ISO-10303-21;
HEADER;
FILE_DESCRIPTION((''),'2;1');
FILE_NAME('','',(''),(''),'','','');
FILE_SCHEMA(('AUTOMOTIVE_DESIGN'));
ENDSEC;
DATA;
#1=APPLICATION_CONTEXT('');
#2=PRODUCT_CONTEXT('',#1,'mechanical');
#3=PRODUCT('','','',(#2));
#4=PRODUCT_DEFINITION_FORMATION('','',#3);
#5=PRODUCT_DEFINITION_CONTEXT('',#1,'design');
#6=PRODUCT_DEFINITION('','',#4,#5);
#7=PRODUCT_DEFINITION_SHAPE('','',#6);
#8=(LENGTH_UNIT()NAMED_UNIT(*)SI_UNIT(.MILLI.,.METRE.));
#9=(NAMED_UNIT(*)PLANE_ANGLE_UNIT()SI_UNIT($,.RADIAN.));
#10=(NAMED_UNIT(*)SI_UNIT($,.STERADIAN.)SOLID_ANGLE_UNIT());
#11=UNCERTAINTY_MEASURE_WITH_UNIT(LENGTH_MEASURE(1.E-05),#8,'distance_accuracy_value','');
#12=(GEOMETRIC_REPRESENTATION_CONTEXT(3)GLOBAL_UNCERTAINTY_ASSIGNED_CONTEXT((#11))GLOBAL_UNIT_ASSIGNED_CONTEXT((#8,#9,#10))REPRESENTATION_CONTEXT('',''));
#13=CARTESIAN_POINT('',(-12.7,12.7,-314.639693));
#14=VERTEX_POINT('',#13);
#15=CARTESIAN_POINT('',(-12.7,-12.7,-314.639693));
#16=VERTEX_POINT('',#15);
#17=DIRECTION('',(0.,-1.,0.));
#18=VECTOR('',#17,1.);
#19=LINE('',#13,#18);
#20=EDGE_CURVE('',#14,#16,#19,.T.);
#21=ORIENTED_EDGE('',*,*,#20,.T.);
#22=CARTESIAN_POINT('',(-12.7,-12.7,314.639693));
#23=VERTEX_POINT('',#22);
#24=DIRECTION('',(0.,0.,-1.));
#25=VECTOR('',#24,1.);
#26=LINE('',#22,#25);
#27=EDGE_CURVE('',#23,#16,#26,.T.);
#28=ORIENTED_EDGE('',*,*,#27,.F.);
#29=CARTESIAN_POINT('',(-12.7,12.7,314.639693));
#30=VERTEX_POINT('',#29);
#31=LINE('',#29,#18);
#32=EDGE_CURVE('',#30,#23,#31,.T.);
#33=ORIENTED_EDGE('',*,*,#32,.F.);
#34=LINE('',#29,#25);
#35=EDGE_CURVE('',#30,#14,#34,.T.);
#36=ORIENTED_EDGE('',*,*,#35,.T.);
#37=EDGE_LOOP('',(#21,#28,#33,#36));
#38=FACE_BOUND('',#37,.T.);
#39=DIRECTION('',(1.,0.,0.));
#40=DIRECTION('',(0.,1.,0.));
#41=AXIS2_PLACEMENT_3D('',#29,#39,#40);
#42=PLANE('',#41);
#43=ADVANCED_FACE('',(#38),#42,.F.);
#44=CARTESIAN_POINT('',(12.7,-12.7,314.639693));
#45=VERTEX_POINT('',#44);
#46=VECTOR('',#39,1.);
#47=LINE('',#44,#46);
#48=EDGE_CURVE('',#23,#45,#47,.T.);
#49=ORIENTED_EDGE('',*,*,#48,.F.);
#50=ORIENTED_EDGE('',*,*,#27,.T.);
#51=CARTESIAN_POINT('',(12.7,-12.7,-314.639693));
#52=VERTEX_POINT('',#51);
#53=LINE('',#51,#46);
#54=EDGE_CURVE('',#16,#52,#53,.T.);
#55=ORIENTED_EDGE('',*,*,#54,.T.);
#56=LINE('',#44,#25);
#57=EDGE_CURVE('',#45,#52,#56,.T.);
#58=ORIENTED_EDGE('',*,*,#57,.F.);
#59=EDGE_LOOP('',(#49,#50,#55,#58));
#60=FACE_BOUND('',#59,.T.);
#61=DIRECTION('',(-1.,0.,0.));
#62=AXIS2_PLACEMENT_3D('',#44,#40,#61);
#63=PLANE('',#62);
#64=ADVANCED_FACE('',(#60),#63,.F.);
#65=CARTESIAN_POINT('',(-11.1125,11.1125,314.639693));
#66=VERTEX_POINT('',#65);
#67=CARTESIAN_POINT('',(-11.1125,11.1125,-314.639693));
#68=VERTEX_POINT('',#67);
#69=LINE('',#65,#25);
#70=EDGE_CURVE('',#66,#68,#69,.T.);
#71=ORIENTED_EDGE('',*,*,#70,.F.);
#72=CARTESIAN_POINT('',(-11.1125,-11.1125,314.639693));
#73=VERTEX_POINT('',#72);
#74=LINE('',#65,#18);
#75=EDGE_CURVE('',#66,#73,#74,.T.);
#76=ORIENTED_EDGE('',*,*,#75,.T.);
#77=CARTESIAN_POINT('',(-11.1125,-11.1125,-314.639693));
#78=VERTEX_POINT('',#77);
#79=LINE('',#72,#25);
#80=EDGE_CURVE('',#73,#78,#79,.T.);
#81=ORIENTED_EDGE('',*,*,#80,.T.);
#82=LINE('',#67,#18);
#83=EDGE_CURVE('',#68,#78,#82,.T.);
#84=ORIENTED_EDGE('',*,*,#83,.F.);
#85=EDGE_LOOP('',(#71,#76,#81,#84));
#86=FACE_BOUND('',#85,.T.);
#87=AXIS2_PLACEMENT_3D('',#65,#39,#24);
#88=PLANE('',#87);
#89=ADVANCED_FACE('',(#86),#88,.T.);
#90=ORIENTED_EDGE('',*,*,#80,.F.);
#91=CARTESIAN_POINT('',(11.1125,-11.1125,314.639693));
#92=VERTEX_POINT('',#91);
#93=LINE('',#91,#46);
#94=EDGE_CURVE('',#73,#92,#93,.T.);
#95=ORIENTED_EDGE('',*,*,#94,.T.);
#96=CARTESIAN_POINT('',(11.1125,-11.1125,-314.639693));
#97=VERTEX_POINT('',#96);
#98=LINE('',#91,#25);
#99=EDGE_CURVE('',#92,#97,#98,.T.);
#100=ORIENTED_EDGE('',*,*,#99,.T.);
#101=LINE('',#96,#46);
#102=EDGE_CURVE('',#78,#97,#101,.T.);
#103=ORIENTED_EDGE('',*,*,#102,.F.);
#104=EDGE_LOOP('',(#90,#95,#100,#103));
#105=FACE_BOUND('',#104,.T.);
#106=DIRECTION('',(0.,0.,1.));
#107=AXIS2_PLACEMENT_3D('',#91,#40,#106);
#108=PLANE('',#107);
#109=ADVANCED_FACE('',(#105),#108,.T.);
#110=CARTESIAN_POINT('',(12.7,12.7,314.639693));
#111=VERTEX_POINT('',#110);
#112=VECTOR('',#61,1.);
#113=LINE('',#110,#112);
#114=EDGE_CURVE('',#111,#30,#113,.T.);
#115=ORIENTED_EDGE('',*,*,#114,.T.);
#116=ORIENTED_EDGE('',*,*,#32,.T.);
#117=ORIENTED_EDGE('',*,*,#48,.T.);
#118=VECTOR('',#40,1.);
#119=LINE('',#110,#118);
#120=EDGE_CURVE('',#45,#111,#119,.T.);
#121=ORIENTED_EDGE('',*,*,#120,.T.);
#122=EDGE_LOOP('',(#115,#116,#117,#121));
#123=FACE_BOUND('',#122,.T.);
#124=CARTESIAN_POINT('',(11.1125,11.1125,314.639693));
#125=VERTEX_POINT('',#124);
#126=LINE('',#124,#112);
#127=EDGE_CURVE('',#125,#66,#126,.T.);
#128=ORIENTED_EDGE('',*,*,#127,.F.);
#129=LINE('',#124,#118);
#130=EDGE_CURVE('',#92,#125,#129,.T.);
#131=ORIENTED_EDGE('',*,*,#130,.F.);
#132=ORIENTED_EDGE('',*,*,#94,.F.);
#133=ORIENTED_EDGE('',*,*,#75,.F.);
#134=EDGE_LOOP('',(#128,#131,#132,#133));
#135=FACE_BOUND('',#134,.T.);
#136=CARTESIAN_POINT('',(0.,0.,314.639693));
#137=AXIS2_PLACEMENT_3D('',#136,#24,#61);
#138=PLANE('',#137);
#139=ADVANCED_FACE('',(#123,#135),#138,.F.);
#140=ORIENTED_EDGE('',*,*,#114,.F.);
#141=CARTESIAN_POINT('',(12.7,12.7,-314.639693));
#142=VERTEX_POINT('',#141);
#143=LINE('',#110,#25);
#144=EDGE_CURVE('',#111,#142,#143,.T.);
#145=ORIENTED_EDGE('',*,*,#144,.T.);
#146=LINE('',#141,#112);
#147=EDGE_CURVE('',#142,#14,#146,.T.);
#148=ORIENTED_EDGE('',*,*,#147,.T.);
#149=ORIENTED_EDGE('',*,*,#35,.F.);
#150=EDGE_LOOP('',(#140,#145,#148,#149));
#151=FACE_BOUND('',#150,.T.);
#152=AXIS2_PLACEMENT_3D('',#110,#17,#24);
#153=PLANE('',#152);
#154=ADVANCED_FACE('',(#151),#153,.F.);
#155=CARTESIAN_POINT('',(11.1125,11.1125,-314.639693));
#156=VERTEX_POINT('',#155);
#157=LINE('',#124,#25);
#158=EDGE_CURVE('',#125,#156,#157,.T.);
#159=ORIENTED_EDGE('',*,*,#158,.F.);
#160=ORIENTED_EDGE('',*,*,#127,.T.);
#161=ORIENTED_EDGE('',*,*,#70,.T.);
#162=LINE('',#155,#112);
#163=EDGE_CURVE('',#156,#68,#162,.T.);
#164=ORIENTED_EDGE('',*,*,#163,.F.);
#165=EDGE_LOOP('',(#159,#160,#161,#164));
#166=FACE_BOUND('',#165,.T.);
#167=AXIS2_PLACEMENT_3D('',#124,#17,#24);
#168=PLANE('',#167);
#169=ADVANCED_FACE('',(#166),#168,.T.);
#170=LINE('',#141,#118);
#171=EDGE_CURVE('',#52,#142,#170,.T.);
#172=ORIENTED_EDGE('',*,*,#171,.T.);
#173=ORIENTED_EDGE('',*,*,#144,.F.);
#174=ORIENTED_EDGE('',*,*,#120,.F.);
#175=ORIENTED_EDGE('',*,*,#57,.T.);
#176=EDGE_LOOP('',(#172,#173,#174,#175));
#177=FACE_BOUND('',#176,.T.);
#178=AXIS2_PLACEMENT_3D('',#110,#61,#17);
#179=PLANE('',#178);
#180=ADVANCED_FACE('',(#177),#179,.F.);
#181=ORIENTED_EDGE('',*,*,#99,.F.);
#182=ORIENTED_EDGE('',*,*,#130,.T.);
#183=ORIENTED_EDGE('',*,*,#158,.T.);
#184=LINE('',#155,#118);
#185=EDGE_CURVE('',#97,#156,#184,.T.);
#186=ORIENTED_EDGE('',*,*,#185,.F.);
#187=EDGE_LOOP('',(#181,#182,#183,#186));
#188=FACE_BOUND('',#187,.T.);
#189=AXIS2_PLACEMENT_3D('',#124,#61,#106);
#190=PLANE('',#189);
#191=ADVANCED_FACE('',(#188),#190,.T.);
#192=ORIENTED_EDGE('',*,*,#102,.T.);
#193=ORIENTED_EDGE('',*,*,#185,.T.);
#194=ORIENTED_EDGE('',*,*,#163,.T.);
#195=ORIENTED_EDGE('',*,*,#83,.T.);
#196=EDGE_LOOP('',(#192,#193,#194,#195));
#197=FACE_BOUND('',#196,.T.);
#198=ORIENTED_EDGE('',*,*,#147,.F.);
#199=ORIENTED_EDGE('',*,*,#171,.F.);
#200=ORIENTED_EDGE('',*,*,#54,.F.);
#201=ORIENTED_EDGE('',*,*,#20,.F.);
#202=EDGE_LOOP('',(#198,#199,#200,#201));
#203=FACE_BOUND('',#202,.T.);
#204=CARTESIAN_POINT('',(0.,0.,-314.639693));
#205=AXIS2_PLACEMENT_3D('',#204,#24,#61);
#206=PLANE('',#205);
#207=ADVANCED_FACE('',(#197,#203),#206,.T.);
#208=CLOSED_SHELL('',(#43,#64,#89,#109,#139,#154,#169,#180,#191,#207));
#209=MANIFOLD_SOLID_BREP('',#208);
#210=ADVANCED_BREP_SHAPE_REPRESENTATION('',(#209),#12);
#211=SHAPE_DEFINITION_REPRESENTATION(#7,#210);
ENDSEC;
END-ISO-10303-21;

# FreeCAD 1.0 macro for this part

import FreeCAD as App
import Part
import Sketcher
Q = App.Units.Quantity


def add_polygon(sketch, points):
    """Adds a closed chain of lines whose ends are joined by coincident constraints."""
    first, n = sketch.GeometryCount, len(points)
    for a, b in zip(points, points[1:] + points[:1]):
        sketch.addGeometry(Part.LineSegment(App.Vector(*a, 0), App.Vector(*b, 0)), False)
    for i in range(n):
        sketch.addConstraint(Sketcher.Constraint("Coincident", first + i, 2, first + (i + 1) % n, 1))

doc = App.newDocument("Part")
body = doc.addObject("PartDesign::Body", "Body")

sketch1 = body.newObject("Sketcher::SketchObject", "Sketch")
sketch1.AttachmentSupport = (doc.getObject("XY_Plane"), [""])
sketch1.MapMode = "FlatFace"
add_polygon(sketch1, [(-13, 13), (-13, -13), (13, -13), (13, 13)])
add_polygon(sketch1, [(11, -11), (-11, -11), (-11, 11), (11, 11)])
sketch1.addConstraint([
    Sketcher.Constraint("Vertical", 0),
    Sketcher.Constraint("Horizontal", 1),
    Sketcher.Constraint("Vertical", 2),
    Sketcher.Constraint("Horizontal", 3),
    Sketcher.Constraint("Horizontal", 4),
    Sketcher.Constraint("Vertical", 5),
    Sketcher.Constraint("Horizontal", 6),
    Sketcher.Constraint("Vertical", 7),
    Sketcher.Constraint("Symmetric", 0, 2, 2, 2, -1, 1),
    Sketcher.Constraint("Symmetric", 4, 2, 6, 2, -1, 1),
    Sketcher.Constraint("Equal", 3, 0),
    Sketcher.Constraint("Equal", 6, 5),
    Sketcher.Constraint("DistanceX", 1, 1, 1, 2, Q("1 in")),
    Sketcher.Constraint("DistanceX", 4, 2, 4, 1, Q("0.875 in")),
])
pad1 = body.newObject("PartDesign::Pad", "Pad")
pad1.Profile = sketch1
pad1.Length = 629.279387
pad1.Midplane = True

doc.recompute()
